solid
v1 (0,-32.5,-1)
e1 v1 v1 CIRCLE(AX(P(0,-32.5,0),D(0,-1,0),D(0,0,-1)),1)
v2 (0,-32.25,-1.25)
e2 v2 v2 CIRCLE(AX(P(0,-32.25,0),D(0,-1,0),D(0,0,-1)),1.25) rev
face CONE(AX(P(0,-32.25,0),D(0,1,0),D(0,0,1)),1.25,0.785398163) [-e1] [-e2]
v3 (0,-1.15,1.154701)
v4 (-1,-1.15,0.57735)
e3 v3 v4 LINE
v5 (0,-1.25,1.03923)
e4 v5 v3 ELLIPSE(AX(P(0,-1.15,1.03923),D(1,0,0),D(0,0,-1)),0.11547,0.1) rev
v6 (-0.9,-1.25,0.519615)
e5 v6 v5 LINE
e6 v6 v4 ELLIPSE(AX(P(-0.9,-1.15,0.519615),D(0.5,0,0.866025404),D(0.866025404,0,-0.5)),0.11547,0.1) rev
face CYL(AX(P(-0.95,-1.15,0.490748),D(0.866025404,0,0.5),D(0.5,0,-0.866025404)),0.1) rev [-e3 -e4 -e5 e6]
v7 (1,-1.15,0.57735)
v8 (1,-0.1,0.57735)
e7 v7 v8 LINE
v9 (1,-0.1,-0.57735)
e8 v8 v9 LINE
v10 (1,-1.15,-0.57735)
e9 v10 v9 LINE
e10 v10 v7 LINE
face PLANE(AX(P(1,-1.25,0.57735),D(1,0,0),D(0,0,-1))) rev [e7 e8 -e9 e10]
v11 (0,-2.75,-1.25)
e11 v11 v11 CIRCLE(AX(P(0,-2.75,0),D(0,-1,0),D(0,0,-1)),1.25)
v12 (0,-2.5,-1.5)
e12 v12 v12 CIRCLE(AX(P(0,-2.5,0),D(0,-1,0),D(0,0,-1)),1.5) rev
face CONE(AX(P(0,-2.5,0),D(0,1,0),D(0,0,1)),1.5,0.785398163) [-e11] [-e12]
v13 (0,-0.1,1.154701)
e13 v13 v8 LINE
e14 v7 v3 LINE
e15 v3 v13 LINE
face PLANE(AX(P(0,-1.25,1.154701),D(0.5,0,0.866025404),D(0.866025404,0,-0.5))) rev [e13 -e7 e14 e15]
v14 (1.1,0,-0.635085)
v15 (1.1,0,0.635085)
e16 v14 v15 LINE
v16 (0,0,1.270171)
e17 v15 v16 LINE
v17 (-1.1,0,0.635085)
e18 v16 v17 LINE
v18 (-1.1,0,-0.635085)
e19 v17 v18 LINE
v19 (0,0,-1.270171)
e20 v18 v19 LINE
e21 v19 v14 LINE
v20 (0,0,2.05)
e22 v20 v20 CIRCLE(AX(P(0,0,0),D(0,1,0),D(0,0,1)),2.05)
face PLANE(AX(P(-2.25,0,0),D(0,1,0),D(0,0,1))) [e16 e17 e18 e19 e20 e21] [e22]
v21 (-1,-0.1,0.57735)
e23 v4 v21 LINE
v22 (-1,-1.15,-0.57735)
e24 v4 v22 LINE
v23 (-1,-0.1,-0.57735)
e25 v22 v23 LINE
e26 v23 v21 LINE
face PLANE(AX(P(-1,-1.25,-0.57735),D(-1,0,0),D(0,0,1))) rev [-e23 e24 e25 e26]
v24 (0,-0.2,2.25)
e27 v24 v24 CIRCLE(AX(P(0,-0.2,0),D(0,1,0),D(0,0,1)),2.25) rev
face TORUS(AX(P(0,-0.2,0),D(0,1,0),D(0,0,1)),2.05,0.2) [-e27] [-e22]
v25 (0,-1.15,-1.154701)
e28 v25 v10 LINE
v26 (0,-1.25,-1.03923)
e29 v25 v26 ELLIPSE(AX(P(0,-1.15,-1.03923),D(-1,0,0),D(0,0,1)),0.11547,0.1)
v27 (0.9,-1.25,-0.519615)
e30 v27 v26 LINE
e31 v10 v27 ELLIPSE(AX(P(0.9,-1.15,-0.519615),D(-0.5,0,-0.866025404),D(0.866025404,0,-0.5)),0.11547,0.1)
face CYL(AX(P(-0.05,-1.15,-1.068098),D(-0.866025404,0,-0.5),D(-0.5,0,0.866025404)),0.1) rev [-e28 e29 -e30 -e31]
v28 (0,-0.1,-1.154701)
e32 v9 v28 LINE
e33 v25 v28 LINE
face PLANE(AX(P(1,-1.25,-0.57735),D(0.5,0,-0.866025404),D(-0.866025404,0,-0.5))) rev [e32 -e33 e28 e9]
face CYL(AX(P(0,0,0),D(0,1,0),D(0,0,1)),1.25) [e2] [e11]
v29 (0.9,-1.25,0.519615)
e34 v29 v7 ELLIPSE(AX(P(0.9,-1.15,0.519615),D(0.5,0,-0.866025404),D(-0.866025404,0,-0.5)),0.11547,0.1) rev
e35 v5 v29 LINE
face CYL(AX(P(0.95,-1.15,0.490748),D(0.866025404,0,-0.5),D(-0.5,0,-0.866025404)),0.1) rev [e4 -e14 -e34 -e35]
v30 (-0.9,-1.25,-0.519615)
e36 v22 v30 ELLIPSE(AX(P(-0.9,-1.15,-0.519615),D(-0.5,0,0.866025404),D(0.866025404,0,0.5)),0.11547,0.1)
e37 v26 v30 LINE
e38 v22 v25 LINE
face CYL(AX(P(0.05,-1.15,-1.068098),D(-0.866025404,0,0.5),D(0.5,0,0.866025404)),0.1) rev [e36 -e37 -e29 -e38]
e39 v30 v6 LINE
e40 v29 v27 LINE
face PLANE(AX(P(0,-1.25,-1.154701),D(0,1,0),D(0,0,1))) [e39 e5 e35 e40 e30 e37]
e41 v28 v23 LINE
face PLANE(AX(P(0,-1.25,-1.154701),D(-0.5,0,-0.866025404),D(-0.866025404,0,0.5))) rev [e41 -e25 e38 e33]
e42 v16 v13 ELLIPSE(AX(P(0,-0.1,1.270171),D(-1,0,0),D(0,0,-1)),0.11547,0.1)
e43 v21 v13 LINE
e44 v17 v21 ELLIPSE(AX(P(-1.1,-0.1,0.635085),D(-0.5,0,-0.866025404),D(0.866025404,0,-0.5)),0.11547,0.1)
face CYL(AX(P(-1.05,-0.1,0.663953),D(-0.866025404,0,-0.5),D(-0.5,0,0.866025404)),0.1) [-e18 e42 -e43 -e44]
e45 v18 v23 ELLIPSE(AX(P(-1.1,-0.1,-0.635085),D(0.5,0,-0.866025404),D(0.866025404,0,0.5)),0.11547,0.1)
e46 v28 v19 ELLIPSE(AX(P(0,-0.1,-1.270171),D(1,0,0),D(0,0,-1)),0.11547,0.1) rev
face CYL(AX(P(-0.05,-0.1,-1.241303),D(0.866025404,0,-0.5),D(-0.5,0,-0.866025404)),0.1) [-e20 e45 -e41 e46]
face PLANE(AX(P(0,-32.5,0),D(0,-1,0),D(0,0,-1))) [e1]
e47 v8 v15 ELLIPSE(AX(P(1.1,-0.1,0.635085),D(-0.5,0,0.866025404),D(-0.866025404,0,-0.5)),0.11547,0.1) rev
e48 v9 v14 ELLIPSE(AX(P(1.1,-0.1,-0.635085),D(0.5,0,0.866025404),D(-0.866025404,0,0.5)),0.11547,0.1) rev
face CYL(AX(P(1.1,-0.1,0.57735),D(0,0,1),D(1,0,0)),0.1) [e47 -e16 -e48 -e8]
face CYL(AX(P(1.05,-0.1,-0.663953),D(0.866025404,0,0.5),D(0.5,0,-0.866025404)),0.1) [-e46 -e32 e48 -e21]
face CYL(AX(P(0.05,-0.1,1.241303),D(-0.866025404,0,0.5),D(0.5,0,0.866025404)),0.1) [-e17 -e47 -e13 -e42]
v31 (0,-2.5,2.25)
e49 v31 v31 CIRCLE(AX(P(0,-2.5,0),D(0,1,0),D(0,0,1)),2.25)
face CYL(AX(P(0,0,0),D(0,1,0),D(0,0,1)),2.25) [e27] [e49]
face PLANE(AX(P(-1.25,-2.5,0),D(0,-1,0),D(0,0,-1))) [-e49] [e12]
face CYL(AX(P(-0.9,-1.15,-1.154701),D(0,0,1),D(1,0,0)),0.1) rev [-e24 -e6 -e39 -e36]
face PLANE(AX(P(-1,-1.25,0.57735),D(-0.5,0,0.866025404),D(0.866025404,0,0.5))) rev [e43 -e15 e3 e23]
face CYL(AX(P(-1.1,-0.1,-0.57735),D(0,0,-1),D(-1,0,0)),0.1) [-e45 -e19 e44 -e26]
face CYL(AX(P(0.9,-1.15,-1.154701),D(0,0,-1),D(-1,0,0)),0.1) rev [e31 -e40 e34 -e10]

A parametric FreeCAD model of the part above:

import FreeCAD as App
import Part
import Sketcher

V = App.Vector
Q = App.Units.Quantity


def edges_at(feature, points):
    """Names of the edges that pass closest to the given points."""
    edges = feature.Shape.Edges
    near = lambda p: min(range(len(edges)), key=lambda i: edges[i].distToShape(Part.Vertex(*p))[0])
    return sorted({f"Edge{near(p) + 1}" for p in points})


def add_polygon(sketch, points):
    """Adds a closed chain of lines whose ends are joined by coincident constraints."""
    first, n = sketch.GeometryCount, len(points)
    for a, b in zip(points, points[1:] + points[:1]):
        sketch.addGeometry(Part.LineSegment(App.Vector(*a, 0), App.Vector(*b, 0)), False)
    for i in range(n):
        sketch.addConstraint(Sketcher.Constraint("Coincident", first + i, 2, first + (i + 1) % n, 1))

doc = App.newDocument("Part")
body = doc.addObject("PartDesign::Body", "Body")

# Sketch on XY plane
sketch1 = body.newObject("Sketcher::SketchObject", "Sketch")
sketch1.AttachmentSupport = (doc.getObject("XY_Plane"), [""])
sketch1.MapMode = "FlatFace"
add_polygon(sketch1, [(-1.2, -32.5), (0, -32.5), (0, 0), (-2.2, 0), (-2.2, -2.5), (-1.2, -2.5)])  # lines 0-5
sketch1.addConstraint(Sketcher.Constraint("Horizontal", 0))
sketch1.addConstraint(Sketcher.Constraint("Vertical", 1))
sketch1.addConstraint(Sketcher.Constraint("Horizontal", 2))
sketch1.addConstraint(Sketcher.Constraint("Vertical", 3))
sketch1.addConstraint(Sketcher.Constraint("Horizontal", 4))
sketch1.addConstraint(Sketcher.Constraint("Vertical", 5))
sketch1.addConstraint(Sketcher.Constraint("Coincident", 1, 2, -1, 1))
sketch1.addConstraint(Sketcher.Constraint("DistanceX", 4, 1, 4, 2, Q("1 mm")))
sketch1.addConstraint(Sketcher.Constraint("DistanceY", 5, 2, 5, 1, Q("30 mm")))
sketch1.addConstraint(Sketcher.Constraint("DistanceY", 1, 1, 1, 2, Q("32.5 mm")))
sketch1.addConstraint(Sketcher.Constraint("DistanceX", 0, 1, 0, 2, Q("1.25 mm")))
revolution = body.newObject("PartDesign::Revolution", "Revolution")
revolution.Profile = sketch1
revolution.ReferenceAxis = (sketch1, ["V_Axis"])
revolution.Angle = 360
doc.recompute()

chamfer = body.newObject("PartDesign::Chamfer", "Chamfer")
chamfer.Base = (revolution, edges_at(revolution, [(0, -2.5, -1.25), (0, -32.5, -1.25)]))
chamfer.Size = 0.25
doc.recompute()

fillet = body.newObject("PartDesign::Fillet", "Fillet")
fillet.Base = (chamfer, edges_at(chamfer, [(0, 0, -2.25)]))
fillet.Radius = 0.2

# Sketch on XZ plane
sketch2 = body.newObject("Sketcher::SketchObject", "Sketch001")
sketch2.AttachmentSupport = (doc.getObject("XZ_Plane"), [""])
sketch2.MapMode = "FlatFace"
add_polygon(sketch2, [(0, -1.2), (-1, -0.6), (-1, 0.6), (0, 1.2), (1, 0.6), (1, -0.6)])  # lines 0-5
sketch2.addConstraint(Sketcher.Constraint("Vertical", 1))
sketch2.addConstraint(Sketcher.Constraint("Vertical", 4))
sketch2.addConstraint(Sketcher.Constraint("Symmetric", 0, 2, 3, 2, -1, 1))
sketch2.addConstraint(Sketcher.Constraint("Symmetric", 2, 2, 5, 2, -1, 1))
sketch2.addConstraint(Sketcher.Constraint("PointOnObject", 2, 2, -2))
sketch2.addConstraint(Sketcher.Constraint("Parallel", 2, 5))
sketch2.addConstraint(Sketcher.Constraint("Horizontal", 1, 2, 3, 2))
sketch2.addConstraint(Sketcher.Constraint("Angle", 0, Q("150 deg")))
sketch2.addConstraint(Sketcher.Constraint("DistanceX", 0, 2, -1, 1, Q("1 mm")))
sketch2.addConstraint(Sketcher.Constraint("DistanceY", 1, 1, 1, 2, Q("1.154701 mm")))
pocket1 = body.newObject("PartDesign::Pocket", "Pocket")
pocket1.Profile = sketch2
pocket1.Length = 1.25
pocket1.Reversed = True
doc.recompute()

fillet2 = body.newObject("PartDesign::Fillet", "Fillet001")
fillet2.Base = (pocket1, edges_at(pocket1, [
    (0.5, -1.25, -0.866),
    (1, -1.25, 0),
    (0.5, -1.25, 0.866),
    (-0.5, -1.25, 0.866),
    (-1, -1.25, 0),
    (-0.5, -1.25, -0.866),
    (0.5, 0, -0.866),
    (-0.5, 0, -0.866),
    (-1, 0, 0),
    (-0.5, 0, 0.866),
    (0.5, 0, 0.866),
    (1, 0, 0),
]))
fillet2.Radius = 0.1

doc.recompute()
